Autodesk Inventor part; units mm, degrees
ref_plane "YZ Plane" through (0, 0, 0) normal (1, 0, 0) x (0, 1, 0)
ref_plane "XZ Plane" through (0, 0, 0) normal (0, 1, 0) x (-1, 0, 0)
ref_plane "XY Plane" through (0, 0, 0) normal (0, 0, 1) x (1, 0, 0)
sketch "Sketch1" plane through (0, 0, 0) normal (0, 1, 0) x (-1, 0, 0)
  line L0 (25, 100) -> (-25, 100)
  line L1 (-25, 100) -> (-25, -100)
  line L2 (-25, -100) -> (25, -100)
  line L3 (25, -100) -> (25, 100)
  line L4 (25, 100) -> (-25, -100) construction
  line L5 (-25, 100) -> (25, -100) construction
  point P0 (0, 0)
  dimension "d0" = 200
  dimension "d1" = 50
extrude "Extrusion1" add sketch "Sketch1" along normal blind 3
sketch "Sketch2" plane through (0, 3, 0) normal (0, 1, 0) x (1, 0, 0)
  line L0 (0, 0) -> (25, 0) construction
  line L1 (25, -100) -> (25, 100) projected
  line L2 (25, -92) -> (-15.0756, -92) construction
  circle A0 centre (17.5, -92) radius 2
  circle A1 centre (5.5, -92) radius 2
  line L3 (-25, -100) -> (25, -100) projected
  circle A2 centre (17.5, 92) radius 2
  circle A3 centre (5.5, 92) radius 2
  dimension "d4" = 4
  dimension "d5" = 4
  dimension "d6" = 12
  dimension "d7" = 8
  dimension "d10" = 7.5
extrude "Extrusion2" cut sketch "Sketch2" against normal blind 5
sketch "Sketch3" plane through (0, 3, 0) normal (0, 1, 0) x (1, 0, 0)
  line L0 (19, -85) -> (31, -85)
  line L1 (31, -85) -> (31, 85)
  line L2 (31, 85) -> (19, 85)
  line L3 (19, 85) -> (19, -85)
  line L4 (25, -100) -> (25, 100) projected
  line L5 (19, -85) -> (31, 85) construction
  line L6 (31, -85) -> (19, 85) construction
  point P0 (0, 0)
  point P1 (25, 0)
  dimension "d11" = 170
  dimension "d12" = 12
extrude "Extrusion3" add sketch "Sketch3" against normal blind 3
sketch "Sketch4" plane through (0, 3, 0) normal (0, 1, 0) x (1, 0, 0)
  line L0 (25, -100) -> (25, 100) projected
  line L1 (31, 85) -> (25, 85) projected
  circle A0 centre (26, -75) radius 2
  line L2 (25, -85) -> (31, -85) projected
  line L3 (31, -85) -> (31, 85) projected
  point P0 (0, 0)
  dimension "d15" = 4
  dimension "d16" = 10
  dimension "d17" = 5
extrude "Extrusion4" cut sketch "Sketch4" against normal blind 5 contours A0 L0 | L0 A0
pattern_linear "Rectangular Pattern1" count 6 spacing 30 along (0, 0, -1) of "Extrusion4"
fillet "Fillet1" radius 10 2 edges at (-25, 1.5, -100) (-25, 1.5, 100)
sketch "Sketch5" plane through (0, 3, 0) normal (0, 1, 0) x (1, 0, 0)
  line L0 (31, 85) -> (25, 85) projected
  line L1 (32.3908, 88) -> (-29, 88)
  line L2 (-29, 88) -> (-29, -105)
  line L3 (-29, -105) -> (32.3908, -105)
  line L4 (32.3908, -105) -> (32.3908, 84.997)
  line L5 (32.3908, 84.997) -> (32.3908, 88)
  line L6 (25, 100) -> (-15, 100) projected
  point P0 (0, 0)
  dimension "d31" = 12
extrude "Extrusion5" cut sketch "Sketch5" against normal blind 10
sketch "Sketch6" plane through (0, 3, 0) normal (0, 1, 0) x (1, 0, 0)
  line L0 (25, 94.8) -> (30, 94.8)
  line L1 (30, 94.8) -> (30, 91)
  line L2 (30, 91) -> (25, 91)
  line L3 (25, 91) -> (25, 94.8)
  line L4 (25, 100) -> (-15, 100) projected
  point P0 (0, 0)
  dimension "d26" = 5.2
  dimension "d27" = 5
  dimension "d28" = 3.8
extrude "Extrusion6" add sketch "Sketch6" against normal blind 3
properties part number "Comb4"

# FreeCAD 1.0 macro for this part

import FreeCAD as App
import Part
import Sketcher
Q = App.Units.Quantity


def edges_at(feature, points):
    """Names of the edges that pass closest to the given points."""
    edges = feature.Shape.Edges
    near = lambda p: min(range(len(edges)), key=lambda i: edges[i].distToShape(Part.Vertex(*p))[0])
    return sorted({f"Edge{near(p) + 1}" for p in points})

doc = App.newDocument("Part")
body = doc.addObject("PartDesign::Body", "Body")

sketch1 = body.newObject("Sketcher::SketchObject", "Sketch")
sketch1.AttachmentSupport = (doc.getObject("XZ_Plane"), [""])
sketch1.MapMode = "FlatFace"
sketch1.addGeometry(Part.LineSegment(App.Vector(-25, -100, 0), App.Vector(-25, 100, 0)), False)
sketch1.addGeometry(Part.LineSegment(App.Vector(-25, 100, 0), App.Vector(25, 100, 0)), False)
sketch1.addGeometry(Part.LineSegment(App.Vector(25, 100, 0), App.Vector(25, -100, 0)), False)
sketch1.addGeometry(Part.LineSegment(App.Vector(25, -100, 0), App.Vector(-25, -100, 0)), False)
sketch1.addConstraint(Sketcher.Constraint("Coincident", 0, 2, 1, 1))
sketch1.addConstraint(Sketcher.Constraint("Coincident", 1, 2, 2, 1))
sketch1.addConstraint(Sketcher.Constraint("Coincident", 2, 2, 3, 1))
sketch1.addConstraint(Sketcher.Constraint("Coincident", 3, 2, 0, 1))
sketch1.addConstraint(Sketcher.Constraint("Vertical", 0))
sketch1.addConstraint(Sketcher.Constraint("Horizontal", 1))
sketch1.addConstraint(Sketcher.Constraint("Vertical", 2))
sketch1.addConstraint(Sketcher.Constraint("Horizontal", 3))
sketch1.addConstraint(Sketcher.Constraint("Symmetric", 0, 2, 2, 2, -1, 1))
sketch1.addConstraint(Sketcher.Constraint("DistanceX", 1, 1, 1, 2, Q("50 mm")))
sketch1.addConstraint(Sketcher.Constraint("DistanceY", 0, 1, 0, 2, Q("200 mm")))
pad1 = body.newObject("PartDesign::Pad", "Pad")
pad1.Profile = sketch1
pad1.Length = 3
pad1.Reversed = True

sketch2 = body.newObject("Sketcher::SketchObject", "Sketch001")
sketch2.AttachmentSupport = (doc.getObject("XZ_Plane"), [""])
sketch2.MapMode = "FlatFace"
sketch2.AttachmentOffset = App.Placement(App.Vector(0, 0, -3), App.Rotation())
sketch2.addGeometry(Part.Circle(App.Vector(17.5, 92, 0), App.Vector(0, 0, 1), 2), False)
sketch2.addGeometry(Part.Circle(App.Vector(5.5, 92, 0), App.Vector(0, 0, 1), 2), False)
sketch2.addGeometry(Part.Circle(App.Vector(17.5, -92, 0), App.Vector(0, 0, 1), 2), False)
sketch2.addGeometry(Part.Circle(App.Vector(5.5, -92, 0), App.Vector(0, 0, 1), 2), False)
sketch2.addConstraint(Sketcher.Constraint("Equal", 0, 1))
sketch2.addConstraint(Sketcher.Constraint("Equal", 1, 2))
sketch2.addConstraint(Sketcher.Constraint("Equal", 2, 3))
sketch2.addConstraint(Sketcher.Constraint("Symmetric", 0, 3, 2, 3, -1))
sketch2.addConstraint(Sketcher.Constraint("Symmetric", 1, 3, 3, 3, -1))
sketch2.addConstraint(Sketcher.Constraint("Horizontal", 0, 3, 1, 3))
sketch2.addConstraint(Sketcher.Constraint("Diameter", 0, Q("4 mm")))
sketch2.addConstraint(Sketcher.Constraint("DistanceX", 1, 3, 0, 3, Q("12 mm")))
sketch2.addConstraint(Sketcher.Constraint("DistanceY", -1, 1, 0, 3, Q("92 mm")))
sketch2.addConstraint(Sketcher.Constraint("DistanceX", -1, 1, 0, 3, Q("17.5 mm")))
pocket1 = body.newObject("PartDesign::Pocket", "Pocket")
pocket1.Profile = sketch2
pocket1.Length = 5
pocket1.Reversed = True

sketch3 = body.newObject("Sketcher::SketchObject", "Sketch002")
sketch3.AttachmentSupport = (doc.getObject("XZ_Plane"), [""])
sketch3.MapMode = "FlatFace"
sketch3.AttachmentOffset = App.Placement(App.Vector(0, 0, -3), App.Rotation())
sketch3.addGeometry(Part.LineSegment(App.Vector(19, -85, 0), App.Vector(19, 85, 0)), False)
sketch3.addGeometry(Part.LineSegment(App.Vector(19, 85, 0), App.Vector(31, 85, 0)), False)
sketch3.addGeometry(Part.LineSegment(App.Vector(31, 85, 0), App.Vector(31, -85, 0)), False)
sketch3.addGeometry(Part.LineSegment(App.Vector(31, -85, 0), App.Vector(19, -85, 0)), False)
sketch3.addConstraint(Sketcher.Constraint("Coincident", 0, 2, 1, 1))
sketch3.addConstraint(Sketcher.Constraint("Coincident", 1, 2, 2, 1))
sketch3.addConstraint(Sketcher.Constraint("Coincident", 2, 2, 3, 1))
sketch3.addConstraint(Sketcher.Constraint("Coincident", 3, 2, 0, 1))
sketch3.addConstraint(Sketcher.Constraint("Vertical", 0))
sketch3.addConstraint(Sketcher.Constraint("Horizontal", 1))
sketch3.addConstraint(Sketcher.Constraint("Vertical", 2))
sketch3.addConstraint(Sketcher.Constraint("Horizontal", 3))
sketch3.addConstraint(Sketcher.Constraint("DistanceX", 1, 1, 1, 2, Q("12 mm")))
sketch3.addConstraint(Sketcher.Constraint("DistanceY", 0, 1, 0, 2, Q("170 mm")))
sketch3.addConstraint(Sketcher.Constraint("DistanceX", -1, 1, 0, 2, Q("19 mm")))
sketch3.addConstraint(Sketcher.Constraint("DistanceY", -1, 1, 0, 2, Q("85 mm")))
pad2 = body.newObject("PartDesign::Pad", "Pad001")
pad2.Profile = sketch3
pad2.Length = 3

sketch4 = body.newObject("Sketcher::SketchObject", "Sketch003")
sketch4.AttachmentSupport = (doc.getObject("XZ_Plane"), [""])
sketch4.MapMode = "FlatFace"
sketch4.AttachmentOffset = App.Placement(App.Vector(0, 0, -3), App.Rotation())
sketch4.addGeometry(Part.Circle(App.Vector(26, 75, 0), App.Vector(0, 0, 1), 2), False)
sketch4.addConstraint(Sketcher.Constraint("Diameter", 0, Q("4 mm")))
sketch4.addConstraint(Sketcher.Constraint("DistanceX", -1, 1, 0, 3, Q("26 mm")))
sketch4.addConstraint(Sketcher.Constraint("DistanceY", -1, 1, 0, 3, Q("75 mm")))
pocket2 = body.newObject("PartDesign::Pocket", "Pocket001")
pocket2.Profile = sketch4
pocket2.Length = 5
pocket2.Reversed = True
doc.recompute()

linearpattern = body.newObject("PartDesign::LinearPattern", "LinearPattern")
linearpattern.Originals = [pocket2]
linearpattern.Direction = (doc.getObject("Z_Axis"), [""])
linearpattern.Mode = "offset"
linearpattern.Offset = 30
linearpattern.Occurrences = 6
linearpattern.Reversed = True
body.Tip = linearpattern
doc.recompute()

fillet = body.newObject("PartDesign::Fillet", "Fillet")
fillet.Base = (linearpattern, edges_at(linearpattern, [(-25, 1.5, -100), (-25, 1.5, 100)]))
fillet.Radius = 10

sketch5 = body.newObject("Sketcher::SketchObject", "Sketch004")
sketch5.AttachmentSupport = (doc.getObject("XZ_Plane"), [""])
sketch5.MapMode = "FlatFace"
sketch5.AttachmentOffset = App.Placement(App.Vector(0, 0, -3), App.Rotation())
sketch5.addGeometry(Part.LineSegment(App.Vector(32, 105, 0), App.Vector(32, -88, 0)), False)
sketch5.addGeometry(Part.LineSegment(App.Vector(32, -88, 0), App.Vector(-29, -88, 0)), False)
sketch5.addGeometry(Part.LineSegment(App.Vector(-29, -88, 0), App.Vector(-29, 105, 0)), False)
sketch5.addGeometry(Part.LineSegment(App.Vector(-29, 105, 0), App.Vector(32, 105, 0)), False)
sketch5.addConstraint(Sketcher.Constraint("Coincident", 0, 2, 1, 1))
sketch5.addConstraint(Sketcher.Constraint("Coincident", 1, 2, 2, 1))
sketch5.addConstraint(Sketcher.Constraint("Coincident", 2, 2, 3, 1))
sketch5.addConstraint(Sketcher.Constraint("Coincident", 3, 2, 0, 1))
sketch5.addConstraint(Sketcher.Constraint("Vertical", 0))
sketch5.addConstraint(Sketcher.Constraint("Horizontal", 1))
sketch5.addConstraint(Sketcher.Constraint("Vertical", 2))
sketch5.addConstraint(Sketcher.Constraint("Horizontal", 3))
sketch5.addConstraint(Sketcher.Constraint("DistanceY", 0, 2, 0, 1, Q("193 mm")))
sketch5.addConstraint(Sketcher.Constraint("DistanceY", 0, 2, -1, 1, Q("88 mm")))
sketch5.addConstraint(Sketcher.Constraint("DistanceX", 1, 2, -1, 1, Q("29 mm")))
sketch5.addConstraint(Sketcher.Constraint("DistanceX", 1, 2, 1, 1, Q("61.3908 mm")))
pocket3 = body.newObject("PartDesign::Pocket", "Pocket002")
pocket3.Profile = sketch5
pocket3.Length = 10
pocket3.Reversed = True

sketch6 = body.newObject("Sketcher::SketchObject", "Sketch005")
sketch6.AttachmentSupport = (doc.getObject("XZ_Plane"), [""])
sketch6.MapMode = "FlatFace"
sketch6.AttachmentOffset = App.Placement(App.Vector(0, 0, -3), App.Rotation())
sketch6.addGeometry(Part.LineSegment(App.Vector(30, -94.8, 0), App.Vector(25, -94.8, 0)), False)
sketch6.addGeometry(Part.LineSegment(App.Vector(25, -94.8, 0), App.Vector(25, -91, 0)), False)
sketch6.addGeometry(Part.LineSegment(App.Vector(25, -91, 0), App.Vector(30, -91, 0)), False)
sketch6.addGeometry(Part.LineSegment(App.Vector(30, -91, 0), App.Vector(30, -94.8, 0)), False)
sketch6.addConstraint(Sketcher.Constraint("Coincident", 0, 2, 1, 1))
sketch6.addConstraint(Sketcher.Constraint("Coincident", 1, 2, 2, 1))
sketch6.addConstraint(Sketcher.Constraint("Coincident", 2, 2, 3, 1))
sketch6.addConstraint(Sketcher.Constraint("Coincident", 3, 2, 0, 1))
sketch6.addConstraint(Sketcher.Constraint("Horizontal", 0))
sketch6.addConstraint(Sketcher.Constraint("Vertical", 1))
sketch6.addConstraint(Sketcher.Constraint("Horizontal", 2))
sketch6.addConstraint(Sketcher.Constraint("Vertical", 3))
sketch6.addConstraint(Sketcher.Constraint("DistanceX", 0, 2, 0, 1, Q("5 mm")))
sketch6.addConstraint(Sketcher.Constraint("DistanceY", 1, 1, 1, 2, Q("3.8 mm")))
sketch6.addConstraint(Sketcher.Constraint("DistanceX", -1, 1, 0, 2, Q("25 mm")))
sketch6.addConstraint(Sketcher.Constraint("DistanceY", 1, 2, -1, 1, Q("91 mm")))
pad3 = body.newObject("PartDesign::Pad", "Pad002")
pad3.Profile = sketch6
pad3.Length = 3

doc.recompute()
